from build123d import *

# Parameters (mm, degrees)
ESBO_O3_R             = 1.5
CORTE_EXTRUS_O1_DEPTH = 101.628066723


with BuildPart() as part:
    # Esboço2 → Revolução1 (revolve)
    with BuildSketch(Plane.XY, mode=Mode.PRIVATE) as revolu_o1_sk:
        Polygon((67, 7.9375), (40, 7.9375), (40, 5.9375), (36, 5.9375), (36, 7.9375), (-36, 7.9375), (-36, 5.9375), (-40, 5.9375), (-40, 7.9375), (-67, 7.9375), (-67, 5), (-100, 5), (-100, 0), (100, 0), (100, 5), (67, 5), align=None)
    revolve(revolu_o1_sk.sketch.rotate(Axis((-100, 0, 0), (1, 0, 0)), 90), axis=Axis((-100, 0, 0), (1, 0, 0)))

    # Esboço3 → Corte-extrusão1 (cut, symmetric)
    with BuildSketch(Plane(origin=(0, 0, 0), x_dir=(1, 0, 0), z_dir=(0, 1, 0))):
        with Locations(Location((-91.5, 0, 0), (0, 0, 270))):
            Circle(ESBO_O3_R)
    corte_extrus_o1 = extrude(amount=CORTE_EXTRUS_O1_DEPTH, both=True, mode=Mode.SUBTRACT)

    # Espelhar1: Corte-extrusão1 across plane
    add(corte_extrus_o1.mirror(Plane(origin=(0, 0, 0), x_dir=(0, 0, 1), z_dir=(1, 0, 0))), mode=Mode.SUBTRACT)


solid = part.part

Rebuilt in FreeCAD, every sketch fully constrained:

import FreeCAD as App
import Part
import Sketcher


def add_polygon(sketch, points):
    """Adds a closed chain of lines whose ends are joined by coincident constraints."""
    first, n = sketch.GeometryCount, len(points)
    for a, b in zip(points, points[1:] + points[:1]):
        sketch.addGeometry(Part.LineSegment(App.Vector(*a, 0), App.Vector(*b, 0)), False)
    for i in range(n):
        sketch.addConstraint(Sketcher.Constraint("Coincident", first + i, 2, first + (i + 1) % n, 1))

doc = App.newDocument("Part")
params = doc.addObject("Spreadsheet::Sheet", "Params")
for row, (alias, value) in enumerate([
    ("sketch1_width", "27 mm"),
    ("sketch1_width2", "4 mm"),
    ("sketch1_width3", "72 mm"),
    ("sketch1_width4", "33 mm"),
    ("sketch1_height", "2 mm"),
    ("revolution_angle", "360 deg"),
    ("sketch2_diameter", "3 mm"),
    ("pocket1_length", "203.256133 mm"),
], start=1):
    params.set(f"A{row}", alias)
    params.set(f"B{row}", "=" + value)
    params.setAlias(f"B{row}", alias)

body = doc.addObject("PartDesign::Body", "Body")

sketch1 = body.newObject("Sketcher::SketchObject", "Sketch")
sketch1.AttachmentSupport = (doc.getObject("XY_Plane"), [""])
sketch1.MapMode = "FlatFace"
add_polygon(sketch1, [(67, 7.9375), (40, 7.9375), (40, 5.9375), (36, 5.9375), (36, 7.9375), (-36, 7.9375), (-36, 5.9375), (-40, 5.9375), (-40, 7.9375), (-67, 7.9375), (-67, 5), (-100, 5), (-100, 0), (100, 0), (100, 5), (67, 5)])
sketch1.addConstraint(Sketcher.Constraint("Horizontal", 0))
sketch1.addConstraint(Sketcher.Constraint("Vertical", 1))
sketch1.addConstraint(Sketcher.Constraint("Horizontal", 2))
sketch1.addConstraint(Sketcher.Constraint("Vertical", 3))
sketch1.addConstraint(Sketcher.Constraint("Horizontal", 4))
sketch1.addConstraint(Sketcher.Constraint("Vertical", 5))
sketch1.addConstraint(Sketcher.Constraint("Horizontal", 6))
sketch1.addConstraint(Sketcher.Constraint("Vertical", 7))
sketch1.addConstraint(Sketcher.Constraint("Horizontal", 8))
sketch1.addConstraint(Sketcher.Constraint("Vertical", 9))
sketch1.addConstraint(Sketcher.Constraint("Horizontal", 10))
sketch1.addConstraint(Sketcher.Constraint("Vertical", 11))
sketch1.addConstraint(Sketcher.Constraint("Horizontal", 12))
sketch1.addConstraint(Sketcher.Constraint("Vertical", 13))
sketch1.addConstraint(Sketcher.Constraint("Horizontal", 14))
sketch1.addConstraint(Sketcher.Constraint("Vertical", 15))
sketch1.addConstraint(Sketcher.Constraint("Symmetric", 11, 2, 12, 2, -1, 1))
sketch1.addConstraint(Sketcher.Constraint("Symmetric", 2, 2, 5, 2, -2))
sketch1.addConstraint(Sketcher.Constraint("Symmetric", 0, 2, 7, 2, -2))
sketch1.addConstraint(Sketcher.Constraint("Symmetric", 9, 2, 14, 2, -2))
sketch1.addConstraint(Sketcher.Constraint("Horizontal", 0, 2, 3, 2))
sketch1.addConstraint(Sketcher.Constraint("DistanceX", 0, 2, 0, 1, 27.0))
sketch1.addConstraint(Sketcher.Constraint("DistanceX", 2, 2, 2, 1, 4.0))
sketch1.addConstraint(Sketcher.Constraint("DistanceX", 4, 2, 4, 1, 72.0))
sketch1.addConstraint(Sketcher.Constraint("DistanceX", 10, 2, 10, 1, 33.0))
sketch1.addConstraint(Sketcher.Constraint("DistanceY", 1, 2, 1, 1, 2.0))
sketch1.addConstraint(Sketcher.Constraint("DistanceY", 11, 2, 11, 1, 5.0))
sketch1.addConstraint(Sketcher.Constraint("DistanceY", 9, 2, 9, 1, 2.9375))
sketch1.setExpression("Constraints[37]", "Params.sketch1_width")
sketch1.setExpression("Constraints[38]", "Params.sketch1_width2")
sketch1.setExpression("Constraints[39]", "Params.sketch1_width3")
sketch1.setExpression("Constraints[40]", "Params.sketch1_width4")
sketch1.setExpression("Constraints[41]", "Params.sketch1_height")
revolution = body.newObject("PartDesign::Revolution", "Revolution")
revolution.Profile = sketch1
revolution.ReferenceAxis = (sketch1, ["H_Axis"])
revolution.setExpression("Angle", "Params.revolution_angle")

sketch2 = body.newObject("Sketcher::SketchObject", "Sketch001")
sketch2.AttachmentSupport = (doc.getObject("XZ_Plane"), [""])
sketch2.MapMode = "FlatFace"
sketch2.addGeometry(Part.Circle(App.Vector(-91.5, 0, 0), App.Vector(0, 0, 1), 1.5), False)
sketch2.addConstraint(Sketcher.Constraint("PointOnObject", 0, 3, -1))
sketch2.addConstraint(Sketcher.Constraint("Diameter", 0, 3.0))
sketch2.addConstraint(Sketcher.Constraint("DistanceX", 0, 3, -1, 1, 91.5))
sketch2.setExpression("Constraints[1]", "Params.sketch2_diameter")
pocket1 = body.newObject("PartDesign::Pocket", "Pocket")
pocket1.Profile = sketch2
pocket1.setExpression("Length", "Params.pocket1_length")
pocket1.Midplane = True
doc.recompute()

mirrored = body.newObject("PartDesign::Mirrored", "Mirrored")
mirrored.Originals = [pocket1]
mirrored.MirrorPlane = (doc.getObject("YZ_Plane"), [""])
body.Tip = mirrored

doc.recompute()
